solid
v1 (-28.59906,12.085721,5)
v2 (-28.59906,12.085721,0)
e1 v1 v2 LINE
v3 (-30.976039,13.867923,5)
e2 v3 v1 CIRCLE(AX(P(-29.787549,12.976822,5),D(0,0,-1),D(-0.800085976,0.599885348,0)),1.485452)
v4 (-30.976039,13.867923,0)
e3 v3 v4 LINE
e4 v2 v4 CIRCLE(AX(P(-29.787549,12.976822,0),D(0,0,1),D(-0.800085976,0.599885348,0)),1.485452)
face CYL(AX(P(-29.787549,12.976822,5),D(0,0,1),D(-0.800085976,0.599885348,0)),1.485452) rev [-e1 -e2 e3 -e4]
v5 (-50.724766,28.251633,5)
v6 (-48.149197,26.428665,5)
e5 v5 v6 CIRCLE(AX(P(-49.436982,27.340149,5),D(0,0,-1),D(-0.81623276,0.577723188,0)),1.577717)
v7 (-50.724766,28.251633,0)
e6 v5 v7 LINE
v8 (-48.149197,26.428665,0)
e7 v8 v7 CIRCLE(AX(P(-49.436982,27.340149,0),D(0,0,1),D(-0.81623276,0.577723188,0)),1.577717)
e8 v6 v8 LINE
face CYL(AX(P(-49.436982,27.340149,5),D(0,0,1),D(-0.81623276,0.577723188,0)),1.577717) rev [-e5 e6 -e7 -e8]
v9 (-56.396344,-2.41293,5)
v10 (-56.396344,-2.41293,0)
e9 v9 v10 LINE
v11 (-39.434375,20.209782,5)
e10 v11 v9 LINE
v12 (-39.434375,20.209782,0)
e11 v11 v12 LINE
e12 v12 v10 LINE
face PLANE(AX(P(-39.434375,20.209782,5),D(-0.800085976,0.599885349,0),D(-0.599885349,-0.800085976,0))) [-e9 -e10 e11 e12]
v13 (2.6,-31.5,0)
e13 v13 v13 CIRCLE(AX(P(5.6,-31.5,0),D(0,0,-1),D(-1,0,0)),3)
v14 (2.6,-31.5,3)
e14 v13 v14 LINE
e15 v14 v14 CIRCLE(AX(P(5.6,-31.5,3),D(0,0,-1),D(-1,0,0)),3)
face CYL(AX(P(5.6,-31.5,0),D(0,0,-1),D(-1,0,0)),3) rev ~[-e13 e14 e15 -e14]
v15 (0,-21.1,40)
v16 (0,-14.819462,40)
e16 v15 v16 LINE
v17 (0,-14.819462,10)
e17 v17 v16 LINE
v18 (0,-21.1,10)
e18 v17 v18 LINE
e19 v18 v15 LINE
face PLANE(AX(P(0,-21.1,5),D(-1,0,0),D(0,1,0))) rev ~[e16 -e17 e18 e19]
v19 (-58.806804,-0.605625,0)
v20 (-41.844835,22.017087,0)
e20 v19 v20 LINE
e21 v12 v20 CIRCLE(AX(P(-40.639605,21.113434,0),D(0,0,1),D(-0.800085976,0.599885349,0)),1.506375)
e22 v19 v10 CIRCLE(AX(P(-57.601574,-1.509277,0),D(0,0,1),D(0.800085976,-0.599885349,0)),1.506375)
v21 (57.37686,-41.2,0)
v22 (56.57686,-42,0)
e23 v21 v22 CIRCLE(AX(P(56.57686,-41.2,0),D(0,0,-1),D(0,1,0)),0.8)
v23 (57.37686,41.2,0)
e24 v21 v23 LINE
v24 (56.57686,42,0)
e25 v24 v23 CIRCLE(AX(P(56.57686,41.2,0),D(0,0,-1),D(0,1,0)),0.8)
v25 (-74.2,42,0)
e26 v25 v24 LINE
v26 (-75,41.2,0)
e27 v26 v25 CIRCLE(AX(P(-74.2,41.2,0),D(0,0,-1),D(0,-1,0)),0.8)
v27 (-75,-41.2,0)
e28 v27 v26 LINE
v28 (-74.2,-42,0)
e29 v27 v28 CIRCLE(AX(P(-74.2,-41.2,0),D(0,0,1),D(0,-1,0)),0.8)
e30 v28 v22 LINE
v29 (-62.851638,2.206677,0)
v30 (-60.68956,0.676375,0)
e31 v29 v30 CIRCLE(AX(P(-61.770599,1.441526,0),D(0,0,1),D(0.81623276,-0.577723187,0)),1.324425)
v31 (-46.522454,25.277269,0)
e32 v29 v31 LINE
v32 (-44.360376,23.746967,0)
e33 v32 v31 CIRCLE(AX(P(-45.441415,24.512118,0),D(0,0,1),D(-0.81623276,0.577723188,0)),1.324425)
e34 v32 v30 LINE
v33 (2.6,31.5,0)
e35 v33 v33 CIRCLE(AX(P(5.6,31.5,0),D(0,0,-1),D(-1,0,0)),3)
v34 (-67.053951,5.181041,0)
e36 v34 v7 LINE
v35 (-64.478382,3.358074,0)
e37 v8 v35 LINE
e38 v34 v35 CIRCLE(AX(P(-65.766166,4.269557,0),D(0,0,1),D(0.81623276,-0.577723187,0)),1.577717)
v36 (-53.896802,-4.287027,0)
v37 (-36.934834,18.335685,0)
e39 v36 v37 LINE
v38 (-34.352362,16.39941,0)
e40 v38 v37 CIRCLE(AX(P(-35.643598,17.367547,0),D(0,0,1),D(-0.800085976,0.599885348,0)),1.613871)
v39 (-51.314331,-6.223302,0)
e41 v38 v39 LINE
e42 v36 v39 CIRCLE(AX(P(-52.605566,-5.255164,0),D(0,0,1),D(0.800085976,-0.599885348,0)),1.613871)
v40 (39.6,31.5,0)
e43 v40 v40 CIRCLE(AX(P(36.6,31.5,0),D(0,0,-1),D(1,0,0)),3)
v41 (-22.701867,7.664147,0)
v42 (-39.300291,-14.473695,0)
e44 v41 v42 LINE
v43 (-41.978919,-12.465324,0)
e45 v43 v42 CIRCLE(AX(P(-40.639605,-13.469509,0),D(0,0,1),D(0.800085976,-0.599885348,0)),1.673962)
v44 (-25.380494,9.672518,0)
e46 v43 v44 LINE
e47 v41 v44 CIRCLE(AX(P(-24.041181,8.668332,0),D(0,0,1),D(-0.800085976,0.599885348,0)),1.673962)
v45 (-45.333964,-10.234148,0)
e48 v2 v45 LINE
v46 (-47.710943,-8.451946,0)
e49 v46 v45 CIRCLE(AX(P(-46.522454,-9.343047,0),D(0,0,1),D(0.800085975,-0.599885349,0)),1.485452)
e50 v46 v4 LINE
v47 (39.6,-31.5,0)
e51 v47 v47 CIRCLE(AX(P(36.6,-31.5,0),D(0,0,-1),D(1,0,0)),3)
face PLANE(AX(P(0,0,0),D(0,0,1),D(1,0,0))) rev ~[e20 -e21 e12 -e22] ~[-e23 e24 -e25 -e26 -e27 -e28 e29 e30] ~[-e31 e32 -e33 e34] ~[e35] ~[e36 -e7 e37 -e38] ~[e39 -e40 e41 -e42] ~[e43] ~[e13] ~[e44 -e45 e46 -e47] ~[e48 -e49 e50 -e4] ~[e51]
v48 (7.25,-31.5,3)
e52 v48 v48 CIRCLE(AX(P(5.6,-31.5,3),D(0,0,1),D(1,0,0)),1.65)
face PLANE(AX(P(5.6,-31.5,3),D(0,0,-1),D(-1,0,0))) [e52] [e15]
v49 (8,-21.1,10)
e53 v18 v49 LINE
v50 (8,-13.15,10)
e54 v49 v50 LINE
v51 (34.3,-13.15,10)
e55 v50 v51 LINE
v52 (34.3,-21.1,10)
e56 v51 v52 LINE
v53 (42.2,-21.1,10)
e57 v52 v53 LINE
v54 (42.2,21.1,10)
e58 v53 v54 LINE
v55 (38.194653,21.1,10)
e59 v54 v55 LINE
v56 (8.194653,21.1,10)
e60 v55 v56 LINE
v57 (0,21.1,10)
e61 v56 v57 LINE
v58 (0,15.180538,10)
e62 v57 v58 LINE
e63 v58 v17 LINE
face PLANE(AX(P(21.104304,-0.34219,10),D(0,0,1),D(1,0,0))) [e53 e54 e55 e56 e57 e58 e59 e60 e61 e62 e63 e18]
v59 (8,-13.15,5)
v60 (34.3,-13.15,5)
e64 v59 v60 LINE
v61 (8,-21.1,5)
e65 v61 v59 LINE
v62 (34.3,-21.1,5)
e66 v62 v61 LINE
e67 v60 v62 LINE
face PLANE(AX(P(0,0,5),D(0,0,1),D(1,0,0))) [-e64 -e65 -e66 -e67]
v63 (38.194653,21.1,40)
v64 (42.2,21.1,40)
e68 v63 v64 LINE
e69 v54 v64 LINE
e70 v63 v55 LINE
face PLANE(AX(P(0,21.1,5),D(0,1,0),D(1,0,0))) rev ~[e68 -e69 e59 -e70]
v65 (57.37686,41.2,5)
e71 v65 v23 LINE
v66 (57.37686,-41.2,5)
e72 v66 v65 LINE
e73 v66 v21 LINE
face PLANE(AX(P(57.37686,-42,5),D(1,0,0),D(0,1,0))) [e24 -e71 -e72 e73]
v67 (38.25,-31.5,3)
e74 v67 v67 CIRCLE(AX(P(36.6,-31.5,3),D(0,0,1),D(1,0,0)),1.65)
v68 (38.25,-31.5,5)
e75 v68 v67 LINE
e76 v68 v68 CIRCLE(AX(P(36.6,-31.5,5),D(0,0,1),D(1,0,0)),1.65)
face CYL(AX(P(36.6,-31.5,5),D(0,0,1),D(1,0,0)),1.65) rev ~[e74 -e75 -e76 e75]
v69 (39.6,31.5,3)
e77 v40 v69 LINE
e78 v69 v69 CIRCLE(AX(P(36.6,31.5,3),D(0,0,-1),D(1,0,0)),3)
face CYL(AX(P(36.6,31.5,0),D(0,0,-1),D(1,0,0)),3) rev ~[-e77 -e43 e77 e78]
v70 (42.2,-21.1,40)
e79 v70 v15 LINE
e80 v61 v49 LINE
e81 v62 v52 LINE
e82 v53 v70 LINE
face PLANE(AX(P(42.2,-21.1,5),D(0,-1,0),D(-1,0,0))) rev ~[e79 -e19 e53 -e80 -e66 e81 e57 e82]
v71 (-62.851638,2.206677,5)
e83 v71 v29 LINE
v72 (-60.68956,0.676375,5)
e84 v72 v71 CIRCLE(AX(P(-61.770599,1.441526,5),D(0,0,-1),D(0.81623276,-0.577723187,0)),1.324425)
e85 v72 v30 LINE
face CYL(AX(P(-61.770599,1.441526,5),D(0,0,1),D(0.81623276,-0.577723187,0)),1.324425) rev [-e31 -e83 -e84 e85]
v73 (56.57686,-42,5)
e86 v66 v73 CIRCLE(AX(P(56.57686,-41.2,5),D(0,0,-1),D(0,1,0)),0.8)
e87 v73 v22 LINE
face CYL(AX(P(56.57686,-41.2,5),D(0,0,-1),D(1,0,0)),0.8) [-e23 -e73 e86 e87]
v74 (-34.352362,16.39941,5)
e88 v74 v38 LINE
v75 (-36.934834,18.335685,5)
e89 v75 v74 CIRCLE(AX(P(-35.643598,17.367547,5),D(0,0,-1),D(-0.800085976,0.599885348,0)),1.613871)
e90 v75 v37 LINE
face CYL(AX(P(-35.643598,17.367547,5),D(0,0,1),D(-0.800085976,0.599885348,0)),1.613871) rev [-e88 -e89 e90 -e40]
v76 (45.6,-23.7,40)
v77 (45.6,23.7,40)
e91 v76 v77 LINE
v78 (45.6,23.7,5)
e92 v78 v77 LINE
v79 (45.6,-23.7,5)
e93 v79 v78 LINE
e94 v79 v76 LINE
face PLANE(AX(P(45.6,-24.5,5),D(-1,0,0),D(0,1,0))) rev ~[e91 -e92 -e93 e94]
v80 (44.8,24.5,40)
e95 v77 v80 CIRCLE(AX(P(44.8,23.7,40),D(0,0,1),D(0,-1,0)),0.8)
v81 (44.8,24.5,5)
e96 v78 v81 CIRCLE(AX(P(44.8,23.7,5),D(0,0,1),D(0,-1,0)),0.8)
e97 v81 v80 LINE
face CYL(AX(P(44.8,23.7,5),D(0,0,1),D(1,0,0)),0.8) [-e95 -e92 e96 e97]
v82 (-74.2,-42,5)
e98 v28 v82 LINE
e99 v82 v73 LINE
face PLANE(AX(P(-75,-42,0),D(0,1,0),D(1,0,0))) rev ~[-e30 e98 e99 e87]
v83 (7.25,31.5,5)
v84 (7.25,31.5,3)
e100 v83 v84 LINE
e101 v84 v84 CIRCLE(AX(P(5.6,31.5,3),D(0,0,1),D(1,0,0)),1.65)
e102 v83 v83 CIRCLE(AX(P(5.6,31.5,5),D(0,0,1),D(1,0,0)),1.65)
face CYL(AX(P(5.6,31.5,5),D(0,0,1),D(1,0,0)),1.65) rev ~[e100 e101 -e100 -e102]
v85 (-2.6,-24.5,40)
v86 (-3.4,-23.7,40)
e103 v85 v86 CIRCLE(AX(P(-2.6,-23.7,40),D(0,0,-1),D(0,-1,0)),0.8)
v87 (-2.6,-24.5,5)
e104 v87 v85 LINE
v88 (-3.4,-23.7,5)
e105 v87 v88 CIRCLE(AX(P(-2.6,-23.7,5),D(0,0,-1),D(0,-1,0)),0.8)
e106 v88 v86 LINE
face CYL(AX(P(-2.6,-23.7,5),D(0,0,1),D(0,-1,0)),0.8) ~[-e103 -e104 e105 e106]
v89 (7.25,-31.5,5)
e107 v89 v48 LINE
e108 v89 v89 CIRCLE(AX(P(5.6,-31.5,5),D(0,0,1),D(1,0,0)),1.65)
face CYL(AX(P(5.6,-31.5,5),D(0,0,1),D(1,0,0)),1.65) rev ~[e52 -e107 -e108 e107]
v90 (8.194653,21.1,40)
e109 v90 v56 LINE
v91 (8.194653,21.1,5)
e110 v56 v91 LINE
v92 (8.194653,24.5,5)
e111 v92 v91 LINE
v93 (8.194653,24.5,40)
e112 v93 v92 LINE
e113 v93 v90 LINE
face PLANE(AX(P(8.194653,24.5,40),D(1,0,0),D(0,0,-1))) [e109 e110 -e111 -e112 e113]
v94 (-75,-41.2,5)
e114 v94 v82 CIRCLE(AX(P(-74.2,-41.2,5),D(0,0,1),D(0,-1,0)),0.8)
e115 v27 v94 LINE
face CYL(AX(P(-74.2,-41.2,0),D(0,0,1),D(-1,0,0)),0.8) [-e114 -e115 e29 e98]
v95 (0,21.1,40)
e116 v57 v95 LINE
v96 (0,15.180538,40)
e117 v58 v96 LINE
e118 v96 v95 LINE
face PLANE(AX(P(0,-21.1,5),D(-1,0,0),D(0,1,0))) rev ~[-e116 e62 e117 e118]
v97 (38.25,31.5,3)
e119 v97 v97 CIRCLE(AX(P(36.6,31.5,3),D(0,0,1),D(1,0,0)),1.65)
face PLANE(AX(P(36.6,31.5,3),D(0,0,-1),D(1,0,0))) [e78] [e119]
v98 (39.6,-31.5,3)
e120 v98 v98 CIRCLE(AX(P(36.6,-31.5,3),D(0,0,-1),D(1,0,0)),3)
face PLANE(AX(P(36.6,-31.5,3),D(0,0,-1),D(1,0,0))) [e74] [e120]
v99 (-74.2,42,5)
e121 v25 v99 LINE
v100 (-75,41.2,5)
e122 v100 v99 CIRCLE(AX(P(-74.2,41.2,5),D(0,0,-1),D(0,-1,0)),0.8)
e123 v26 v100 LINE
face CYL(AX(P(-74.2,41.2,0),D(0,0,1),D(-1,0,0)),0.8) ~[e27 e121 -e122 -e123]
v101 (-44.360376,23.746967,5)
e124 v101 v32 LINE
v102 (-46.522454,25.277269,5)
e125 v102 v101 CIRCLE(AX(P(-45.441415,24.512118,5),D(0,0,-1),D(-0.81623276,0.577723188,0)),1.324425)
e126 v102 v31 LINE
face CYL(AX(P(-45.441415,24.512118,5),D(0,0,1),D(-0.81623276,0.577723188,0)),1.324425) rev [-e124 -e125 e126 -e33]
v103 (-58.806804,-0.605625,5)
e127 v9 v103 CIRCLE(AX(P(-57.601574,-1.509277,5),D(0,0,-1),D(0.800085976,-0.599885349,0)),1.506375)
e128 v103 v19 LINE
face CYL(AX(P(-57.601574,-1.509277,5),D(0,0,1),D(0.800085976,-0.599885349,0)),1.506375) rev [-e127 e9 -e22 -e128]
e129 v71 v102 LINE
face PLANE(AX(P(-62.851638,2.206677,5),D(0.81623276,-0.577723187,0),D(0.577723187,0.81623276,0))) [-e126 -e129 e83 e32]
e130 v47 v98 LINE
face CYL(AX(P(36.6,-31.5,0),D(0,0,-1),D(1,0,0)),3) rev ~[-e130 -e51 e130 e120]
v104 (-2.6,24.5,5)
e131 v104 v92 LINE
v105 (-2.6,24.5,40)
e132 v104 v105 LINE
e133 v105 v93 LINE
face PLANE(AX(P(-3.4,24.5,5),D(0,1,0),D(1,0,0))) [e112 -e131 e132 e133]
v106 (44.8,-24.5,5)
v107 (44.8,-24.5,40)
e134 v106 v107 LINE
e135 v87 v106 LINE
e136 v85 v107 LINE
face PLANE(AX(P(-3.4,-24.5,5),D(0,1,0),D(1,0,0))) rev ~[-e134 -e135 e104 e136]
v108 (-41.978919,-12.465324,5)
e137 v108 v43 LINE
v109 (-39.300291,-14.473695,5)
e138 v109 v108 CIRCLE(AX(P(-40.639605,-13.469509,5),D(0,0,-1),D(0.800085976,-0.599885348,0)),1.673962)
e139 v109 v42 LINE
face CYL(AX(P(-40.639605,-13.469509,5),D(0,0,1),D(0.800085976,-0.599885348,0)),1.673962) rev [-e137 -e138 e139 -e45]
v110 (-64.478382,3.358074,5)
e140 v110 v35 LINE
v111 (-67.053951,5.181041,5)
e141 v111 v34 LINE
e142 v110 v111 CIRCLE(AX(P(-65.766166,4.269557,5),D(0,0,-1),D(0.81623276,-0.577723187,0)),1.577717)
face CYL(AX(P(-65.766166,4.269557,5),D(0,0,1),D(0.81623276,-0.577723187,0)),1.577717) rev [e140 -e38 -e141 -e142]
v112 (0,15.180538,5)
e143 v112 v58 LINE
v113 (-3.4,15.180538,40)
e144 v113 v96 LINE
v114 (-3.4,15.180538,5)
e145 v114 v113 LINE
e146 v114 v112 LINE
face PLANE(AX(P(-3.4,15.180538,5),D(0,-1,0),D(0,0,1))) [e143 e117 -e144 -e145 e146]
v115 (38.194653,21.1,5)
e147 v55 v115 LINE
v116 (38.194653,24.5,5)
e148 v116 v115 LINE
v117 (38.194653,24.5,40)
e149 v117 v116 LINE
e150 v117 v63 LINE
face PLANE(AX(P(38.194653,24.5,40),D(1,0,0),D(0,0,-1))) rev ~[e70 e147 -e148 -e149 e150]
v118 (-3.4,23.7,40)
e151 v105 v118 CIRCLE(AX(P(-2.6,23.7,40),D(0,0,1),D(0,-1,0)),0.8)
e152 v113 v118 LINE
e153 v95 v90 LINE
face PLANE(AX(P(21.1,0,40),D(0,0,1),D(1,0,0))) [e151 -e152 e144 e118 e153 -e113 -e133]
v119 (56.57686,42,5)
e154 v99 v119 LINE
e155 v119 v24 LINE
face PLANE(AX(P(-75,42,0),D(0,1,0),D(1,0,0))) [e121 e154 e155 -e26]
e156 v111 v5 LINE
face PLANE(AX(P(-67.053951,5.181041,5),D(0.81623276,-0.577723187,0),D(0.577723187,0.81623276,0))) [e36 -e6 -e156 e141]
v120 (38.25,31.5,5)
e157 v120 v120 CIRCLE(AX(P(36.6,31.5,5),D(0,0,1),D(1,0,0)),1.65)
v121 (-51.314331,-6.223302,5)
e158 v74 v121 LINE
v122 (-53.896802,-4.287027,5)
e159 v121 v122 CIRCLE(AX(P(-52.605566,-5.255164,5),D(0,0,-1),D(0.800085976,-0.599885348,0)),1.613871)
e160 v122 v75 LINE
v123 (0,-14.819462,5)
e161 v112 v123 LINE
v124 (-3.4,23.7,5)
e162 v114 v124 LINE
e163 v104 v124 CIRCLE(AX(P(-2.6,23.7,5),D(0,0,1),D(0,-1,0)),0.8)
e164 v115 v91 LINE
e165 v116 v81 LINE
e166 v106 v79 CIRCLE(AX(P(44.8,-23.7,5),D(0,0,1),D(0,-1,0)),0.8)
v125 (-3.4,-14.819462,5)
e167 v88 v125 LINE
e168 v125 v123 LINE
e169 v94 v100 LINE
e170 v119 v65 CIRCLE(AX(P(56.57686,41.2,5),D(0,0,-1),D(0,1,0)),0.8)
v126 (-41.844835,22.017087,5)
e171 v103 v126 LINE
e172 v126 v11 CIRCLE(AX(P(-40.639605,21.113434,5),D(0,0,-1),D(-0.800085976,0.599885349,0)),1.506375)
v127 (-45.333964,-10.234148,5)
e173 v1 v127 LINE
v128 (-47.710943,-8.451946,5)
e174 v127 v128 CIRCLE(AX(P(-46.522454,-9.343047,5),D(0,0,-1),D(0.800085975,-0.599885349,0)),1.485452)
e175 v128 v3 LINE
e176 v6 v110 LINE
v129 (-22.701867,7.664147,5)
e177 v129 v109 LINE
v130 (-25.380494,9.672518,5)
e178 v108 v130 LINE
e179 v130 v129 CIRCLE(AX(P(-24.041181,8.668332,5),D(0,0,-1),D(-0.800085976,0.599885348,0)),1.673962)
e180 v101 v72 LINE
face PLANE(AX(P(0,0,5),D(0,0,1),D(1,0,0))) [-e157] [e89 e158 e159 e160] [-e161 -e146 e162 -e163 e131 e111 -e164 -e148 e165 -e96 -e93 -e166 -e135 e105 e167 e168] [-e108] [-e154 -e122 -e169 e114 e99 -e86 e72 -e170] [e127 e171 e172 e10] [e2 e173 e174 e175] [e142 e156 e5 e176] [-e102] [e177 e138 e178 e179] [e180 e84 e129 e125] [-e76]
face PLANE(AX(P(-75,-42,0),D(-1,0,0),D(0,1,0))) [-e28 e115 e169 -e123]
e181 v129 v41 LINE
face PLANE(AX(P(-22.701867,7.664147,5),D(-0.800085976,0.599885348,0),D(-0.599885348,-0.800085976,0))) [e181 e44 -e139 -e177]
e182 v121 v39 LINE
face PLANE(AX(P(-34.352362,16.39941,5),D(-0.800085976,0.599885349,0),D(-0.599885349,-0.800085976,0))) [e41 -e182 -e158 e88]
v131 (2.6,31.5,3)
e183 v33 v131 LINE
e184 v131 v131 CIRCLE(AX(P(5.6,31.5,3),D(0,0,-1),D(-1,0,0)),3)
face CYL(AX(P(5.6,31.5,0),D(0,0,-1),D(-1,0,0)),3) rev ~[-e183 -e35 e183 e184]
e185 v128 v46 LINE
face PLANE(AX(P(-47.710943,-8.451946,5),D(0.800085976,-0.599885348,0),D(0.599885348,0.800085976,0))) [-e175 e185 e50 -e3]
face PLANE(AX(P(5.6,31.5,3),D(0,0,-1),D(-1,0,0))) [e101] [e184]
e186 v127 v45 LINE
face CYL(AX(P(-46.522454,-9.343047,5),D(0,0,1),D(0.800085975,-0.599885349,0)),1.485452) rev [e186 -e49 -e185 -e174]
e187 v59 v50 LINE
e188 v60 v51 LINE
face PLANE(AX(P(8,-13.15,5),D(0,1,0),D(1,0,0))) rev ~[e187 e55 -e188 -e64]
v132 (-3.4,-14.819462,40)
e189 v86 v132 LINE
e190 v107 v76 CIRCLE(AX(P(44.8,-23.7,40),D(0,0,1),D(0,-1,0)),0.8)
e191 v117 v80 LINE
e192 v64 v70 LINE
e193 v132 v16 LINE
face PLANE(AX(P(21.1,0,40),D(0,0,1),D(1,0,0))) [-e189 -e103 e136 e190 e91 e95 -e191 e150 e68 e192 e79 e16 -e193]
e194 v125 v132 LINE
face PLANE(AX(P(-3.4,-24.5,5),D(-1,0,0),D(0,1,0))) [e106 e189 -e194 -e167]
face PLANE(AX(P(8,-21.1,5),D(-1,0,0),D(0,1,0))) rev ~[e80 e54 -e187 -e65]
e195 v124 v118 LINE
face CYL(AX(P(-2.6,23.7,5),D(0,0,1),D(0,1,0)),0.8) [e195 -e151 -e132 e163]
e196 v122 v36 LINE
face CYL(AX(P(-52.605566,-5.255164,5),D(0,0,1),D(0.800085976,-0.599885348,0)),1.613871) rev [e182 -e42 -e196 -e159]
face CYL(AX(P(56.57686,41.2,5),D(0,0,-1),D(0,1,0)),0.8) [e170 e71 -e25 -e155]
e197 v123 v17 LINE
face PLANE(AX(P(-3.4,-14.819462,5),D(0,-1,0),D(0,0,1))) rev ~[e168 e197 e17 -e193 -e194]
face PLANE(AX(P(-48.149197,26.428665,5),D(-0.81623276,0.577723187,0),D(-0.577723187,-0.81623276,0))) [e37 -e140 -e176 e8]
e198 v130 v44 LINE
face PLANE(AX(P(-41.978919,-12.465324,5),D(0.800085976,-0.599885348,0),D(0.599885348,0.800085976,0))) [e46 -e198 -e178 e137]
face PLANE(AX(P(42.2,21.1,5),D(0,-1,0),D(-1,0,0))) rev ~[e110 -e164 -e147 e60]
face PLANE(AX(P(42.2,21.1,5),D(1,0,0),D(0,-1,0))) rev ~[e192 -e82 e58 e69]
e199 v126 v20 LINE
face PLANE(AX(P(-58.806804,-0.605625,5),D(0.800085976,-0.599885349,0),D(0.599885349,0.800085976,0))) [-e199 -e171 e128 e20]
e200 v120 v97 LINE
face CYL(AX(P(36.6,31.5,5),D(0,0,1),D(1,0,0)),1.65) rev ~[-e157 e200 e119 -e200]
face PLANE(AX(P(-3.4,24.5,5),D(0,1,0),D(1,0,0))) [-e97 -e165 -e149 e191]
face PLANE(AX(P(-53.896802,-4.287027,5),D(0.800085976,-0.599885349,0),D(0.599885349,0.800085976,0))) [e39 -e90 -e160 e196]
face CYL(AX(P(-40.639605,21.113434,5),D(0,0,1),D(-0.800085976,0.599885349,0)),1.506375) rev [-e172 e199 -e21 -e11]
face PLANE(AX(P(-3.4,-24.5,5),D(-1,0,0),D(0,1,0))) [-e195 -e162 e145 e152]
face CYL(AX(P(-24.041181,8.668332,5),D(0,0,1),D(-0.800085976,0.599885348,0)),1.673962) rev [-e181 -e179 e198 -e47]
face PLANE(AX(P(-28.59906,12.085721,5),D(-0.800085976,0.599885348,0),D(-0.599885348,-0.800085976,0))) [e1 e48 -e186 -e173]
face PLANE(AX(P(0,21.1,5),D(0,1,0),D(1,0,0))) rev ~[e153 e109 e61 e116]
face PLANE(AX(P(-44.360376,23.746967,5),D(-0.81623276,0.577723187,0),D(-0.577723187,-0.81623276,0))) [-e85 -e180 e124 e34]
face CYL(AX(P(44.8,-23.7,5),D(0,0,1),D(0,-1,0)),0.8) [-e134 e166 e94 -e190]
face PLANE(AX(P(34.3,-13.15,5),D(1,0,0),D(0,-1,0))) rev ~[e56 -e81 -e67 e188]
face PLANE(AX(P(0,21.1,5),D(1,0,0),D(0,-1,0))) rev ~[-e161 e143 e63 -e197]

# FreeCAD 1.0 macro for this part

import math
import FreeCAD as App
import Part
import Sketcher
from FreeCAD import Vector


def edges_at(feature, points):
    """Names of the edges that pass closest to the given points."""
    edges = feature.Shape.Edges
    near = lambda p: min(range(len(edges)), key=lambda i: edges[i].distToShape(Part.Vertex(*p))[0])
    return sorted({f"Edge{near(p) + 1}" for p in points})


def add_polygon(sketch, points):
    """Adds a closed chain of lines whose ends are joined by coincident constraints."""
    first, n = sketch.GeometryCount, len(points)
    for a, b in zip(points, points[1:] + points[:1]):
        sketch.addGeometry(Part.LineSegment(App.Vector(*a, 0), App.Vector(*b, 0)), False)
    for i in range(n):
        sketch.addConstraint(Sketcher.Constraint("Coincident", first + i, 2, first + (i + 1) % n, 1))

doc = App.newDocument("Part")
params = doc.addObject("Spreadsheet::Sheet", "Params")
for row, (alias, value) in enumerate([
    ("sketch1_width", "150 mm"),
    ("sketch1_height", "84 mm"),
    ("pad1_length", "5 mm"),
    ("sketch2_width", "49 mm"),
    ("sketch2_width2", "42.2 mm"),
    ("pad2_length", "35 mm"),
    ("sketch3_width", "30 mm"),
    ("sketch3_height", "35 mm"),
    ("pocket1_length", "21 mm"),
    ("sketch4_width", "30 mm"),
    ("sketch4_height", "35 mm"),
    ("pocket2_length", "21 mm"),
    ("fillet_radius", "0.8 mm"),
    ("pocket3_length", "21 mm"),
    ("sketch6_height", "84 mm"),
    ("pocket4_length", "21 mm"),
    ("fillet2_radius", "0.8 mm"),
    ("sketch7_width", "8 mm"),
    ("sketch7_width2", "26.3 mm"),
    ("sketch7_width3", "7.9 mm"),
    ("sketch7_height", "7.95 mm"),
    ("pad3_length", "5 mm"),
    ("sketch8_diameter", "3.3 mm"),
    ("pocket5_length", "10 mm"),
    ("sketch9_diameter", "6 mm"),
    ("pocket6_length", "3 mm"),
], start=1):
    params.set(f"A{row}", alias)
    params.set(f"B{row}", "=" + value)
    params.setAlias(f"B{row}", alias)

body = doc.addObject("PartDesign::Body", "Body")

# Sketch on XY plane
sketch1 = doc.addObject("Sketcher::SketchObject", "Sketch")
body.addObject(sketch1)
sketch1.AttachmentSupport = (doc.XY_Plane, [""])
sketch1.MapMode = "FlatFace"
add_polygon(sketch1, [(-75, 42), (-75, -42), (75, -42), (75, 42)])  # lines 0-3
sketch1.addConstraint(Sketcher.Constraint("Vertical", 0))
sketch1.addConstraint(Sketcher.Constraint("Horizontal", 1))
sketch1.addConstraint(Sketcher.Constraint("Vertical", 2))
sketch1.addConstraint(Sketcher.Constraint("Horizontal", 3))
sketch1.addConstraint(Sketcher.Constraint("Symmetric", 0, 2, 2, 2, -1, 1))
sketch1.addConstraint(Sketcher.Constraint("DistanceX", 1, 1, 1, 2, 150.0))
sketch1.addConstraint(Sketcher.Constraint("DistanceY", 0, 2, 0, 1, 84.0))
sketch1.setExpression("Constraints[9]", "Params.sketch1_width")
sketch1.setExpression("Constraints[10]", "Params.sketch1_height")
pad1 = doc.addObject("PartDesign::Pad", "Pad")
body.addObject(pad1)
pad1.Profile = sketch1
pad1.setExpression("Length", "Params.pad1_length")

# Sketch on XY plane
sketch2 = doc.addObject("Sketcher::SketchObject", "Sketch001")
body.addObject(sketch2)
sketch2.AttachmentSupport = (doc.XY_Plane, [""])
sketch2.MapMode = "FlatFace"
sketch2.AttachmentOffset = App.Placement(Vector(0, 0, 5), App.Rotation())
add_polygon(sketch2, [(-3.4, 24.5), (-3.4, -24.5), (45.6, -24.5), (45.6, 24.5)])  # lines 0-3
add_polygon(sketch2, [(0, -21.1), (0, 21.1), (42.2, 21.1), (42.2, -21.1)])  # lines 4-7
sketch2.addConstraint(Sketcher.Constraint("Vertical", 0))
sketch2.addConstraint(Sketcher.Constraint("Horizontal", 1))
sketch2.addConstraint(Sketcher.Constraint("Vertical", 2))
sketch2.addConstraint(Sketcher.Constraint("Horizontal", 3))
sketch2.addConstraint(Sketcher.Constraint("Vertical", 4))
sketch2.addConstraint(Sketcher.Constraint("Horizontal", 5))
sketch2.addConstraint(Sketcher.Constraint("Vertical", 6))
sketch2.addConstraint(Sketcher.Constraint("Horizontal", 7))
sketch2.addConstraint(Sketcher.Constraint("Symmetric", 4, 2, 7, 2, -1, 1))
sketch2.addConstraint(Sketcher.Constraint("Equal", 3, 0))
sketch2.addConstraint(Sketcher.Constraint("Equal", 7, 4))
sketch2.addConstraint(Sketcher.Constraint("DistanceX", 1, 1, 1, 2, 49.0))
sketch2.addConstraint(Sketcher.Constraint("DistanceX", 5, 1, 5, 2, 42.2))
sketch2.addConstraint(Sketcher.Constraint("DistanceX", 0, 2, -1, 1, 3.4))
sketch2.addConstraint(Sketcher.Constraint("DistanceY", 0, 2, -1, 1, 24.5))
sketch2.setExpression("Constraints[19]", "Params.sketch2_width")
sketch2.setExpression("Constraints[20]", "Params.sketch2_width2")
pad2 = doc.addObject("PartDesign::Pad", "Pad001")
body.addObject(pad2)
pad2.Profile = sketch2
pad2.setExpression("Length", "Params.pad2_length")

# Sketch on YZ plane
sketch3 = doc.addObject("Sketcher::SketchObject", "Sketch002")
body.addObject(sketch3)
sketch3.AttachmentSupport = (doc.YZ_Plane, [""])
sketch3.MapMode = "FlatFace"
sketch3.AttachmentOffset = App.Placement(Vector(0, 0, -3.4), App.Rotation())
add_polygon(sketch3, [(15.180538, 5), (-14.819462, 5), (-14.819462, 40), (15.180538, 40)])  # lines 0-3
sketch3.addConstraint(Sketcher.Constraint("Horizontal", 0))
sketch3.addConstraint(Sketcher.Constraint("Vertical", 1))
sketch3.addConstraint(Sketcher.Constraint("Horizontal", 2))
sketch3.addConstraint(Sketcher.Constraint("Vertical", 3))
sketch3.addConstraint(Sketcher.Constraint("DistanceX", 0, 2, 0, 1, 30.0))
sketch3.addConstraint(Sketcher.Constraint("DistanceY", 1, 1, 1, 2, 35.0))
sketch3.addConstraint(Sketcher.Constraint("DistanceY", -1, 1, 0, 2, 5.0))
sketch3.addConstraint(Sketcher.Constraint("DistanceX", 0, 2, -1, 1, 14.819462))
sketch3.setExpression("Constraints[8]", "Params.sketch3_width")
sketch3.setExpression("Constraints[9]", "Params.sketch3_height")
pocket1 = doc.addObject("PartDesign::Pocket", "Pocket")
body.addObject(pocket1)
pocket1.Profile = sketch3
pocket1.setExpression("Length", "Params.pocket1_length")
pocket1.Reversed = True

# Sketch on XZ plane
sketch4 = doc.addObject("Sketcher::SketchObject", "Sketch003")
body.addObject(sketch4)
sketch4.AttachmentSupport = (doc.XZ_Plane, [""])
sketch4.MapMode = "FlatFace"
sketch4.AttachmentOffset = App.Placement(Vector(0, 0, -24.5), App.Rotation())
add_polygon(sketch4, [(8.194653, 5), (8.194653, 40), (38.194653, 40), (38.194653, 5)])  # lines 0-3
sketch4.addConstraint(Sketcher.Constraint("Vertical", 0))
sketch4.addConstraint(Sketcher.Constraint("Horizontal", 1))
sketch4.addConstraint(Sketcher.Constraint("Vertical", 2))
sketch4.addConstraint(Sketcher.Constraint("Horizontal", 3))
sketch4.addConstraint(Sketcher.Constraint("DistanceX", 1, 1, 1, 2, 30.0))
sketch4.addConstraint(Sketcher.Constraint("DistanceY", 0, 1, 0, 2, 35.0))
sketch4.addConstraint(Sketcher.Constraint("DistanceY", -1, 1, 0, 2, 40.0))
sketch4.addConstraint(Sketcher.Constraint("DistanceX", -1, 1, 0, 2, 8.194653))
sketch4.setExpression("Constraints[8]", "Params.sketch4_width")
sketch4.setExpression("Constraints[9]", "Params.sketch4_height")
pocket2 = doc.addObject("PartDesign::Pocket", "Pocket001")
body.addObject(pocket2)
pocket2.Profile = sketch4
pocket2.setExpression("Length", "Params.pocket2_length")
pocket2.Reversed = True
doc.recompute()

fillet = doc.addObject("PartDesign::Fillet", "Fillet")
body.addObject(fillet)
fillet.Base = (pocket2, edges_at(pocket2, [
    (45.6, -24.5, 22.5),
    (45.6, 24.5, 22.5),
    (-3.4, 24.5, 22.5),
    (-3.4, -24.5, 22.5),
    (75, -42, 2.5),
    (-75, -42, 2.5),
    (-75, 42, 2.5),
    (75, 42, 2.5),
]))
fillet.setExpression("Radius", "Params.fillet_radius")

# Sketch on XY plane
sketch5 = doc.addObject("Sketcher::SketchObject", "Sketch004")
body.addObject(sketch5)
sketch5.AttachmentSupport = (doc.XY_Plane, [""])
sketch5.MapMode = "FlatFace"
sketch5.AttachmentOffset = App.Placement(Vector(0, 0, 5), App.Rotation())
sketch5.addGeometry(Part.LineSegment(Vector(-64.478382, 3.358074, 0), Vector(-48.149197, 26.428665, 0)), False)
sketch5.addGeometry(Part.ArcOfCircle(Part.Circle(Vector(-49.436982, 27.340149, 0), Vector(0, 0, 1), 1.577717), math.radians(-35.290563), math.radians(144.709437)), False)
sketch5.addGeometry(Part.LineSegment(Vector(-50.724766, 28.251633, 0), Vector(-67.053951, 5.181041, 0)), False)
sketch5.addGeometry(Part.ArcOfCircle(Part.Circle(Vector(-65.766166, 4.269557, 0), Vector(0, 0, 1), 1.577717), math.radians(144.709437), math.radians(324.709437)), False)
sketch5.addGeometry(Part.LineSegment(Vector(-60.68956, 0.676375, 0), Vector(-44.360376, 23.746967, 0)), False)
sketch5.addGeometry(Part.ArcOfCircle(Part.Circle(Vector(-45.441415, 24.512118, 0), Vector(0, 0, 1), 1.324425), math.radians(-35.290563), math.radians(144.709437)), False)
sketch5.addGeometry(Part.LineSegment(Vector(-46.522454, 25.277269, 0), Vector(-62.851638, 2.206677, 0)), False)
sketch5.addGeometry(Part.ArcOfCircle(Part.Circle(Vector(-61.770599, 1.441526, 0), Vector(0, 0, 1), 1.324425), math.radians(144.709437), math.radians(324.709437)), False)
sketch5.addGeometry(Part.LineSegment(Vector(-56.396344, -2.41293, 0), Vector(-39.434375, 20.209782, 0)), False)
sketch5.addGeometry(Part.ArcOfCircle(Part.Circle(Vector(-40.639605, 21.113434, 0), Vector(0, 0, 1), 1.506375), math.radians(-36.861687), math.radians(143.138313)), False)
sketch5.addGeometry(Part.LineSegment(Vector(-41.844835, 22.017087, 0), Vector(-58.806804, -0.605625, 0)), False)
sketch5.addGeometry(Part.ArcOfCircle(Part.Circle(Vector(-57.601574, -1.509277, 0), Vector(0, 0, 1), 1.506375), math.radians(143.138313), math.radians(323.138313)), False)
sketch5.addGeometry(Part.LineSegment(Vector(-51.314331, -6.223302, 0), Vector(-34.352362, 16.39941, 0)), False)
sketch5.addGeometry(Part.ArcOfCircle(Part.Circle(Vector(-35.643598, 17.367547, 0), Vector(0, 0, 1), 1.613871), math.radians(-36.861687), math.radians(143.138313)), False)
sketch5.addGeometry(Part.LineSegment(Vector(-36.934834, 18.335685, 0), Vector(-53.896802, -4.287027, 0)), False)
sketch5.addGeometry(Part.ArcOfCircle(Part.Circle(Vector(-52.605566, -5.255164, 0), Vector(0, 0, 1), 1.613871), math.radians(143.138313), math.radians(323.138313)), False)
sketch5.addGeometry(Part.LineSegment(Vector(-45.333964, -10.234148, 0), Vector(-28.59906, 12.085721, 0)), False)
sketch5.addGeometry(Part.ArcOfCircle(Part.Circle(Vector(-29.787549, 12.976822, 0), Vector(0, 0, 1), 1.485452), math.radians(-36.861687), math.radians(143.138313)), False)
sketch5.addGeometry(Part.LineSegment(Vector(-30.976039, 13.867923, 0), Vector(-47.710943, -8.451946, 0)), False)
sketch5.addGeometry(Part.ArcOfCircle(Part.Circle(Vector(-46.522454, -9.343047, 0), Vector(0, 0, 1), 1.485452), math.radians(143.138313), math.radians(323.138313)), False)
sketch5.addGeometry(Part.LineSegment(Vector(-39.300291, -14.473695, 0), Vector(-22.701867, 7.664147, 0)), False)
sketch5.addGeometry(Part.ArcOfCircle(Part.Circle(Vector(-24.041181, 8.668332, 0), Vector(0, 0, 1), 1.673962), math.radians(-36.861687), math.radians(143.138313)), False)
sketch5.addGeometry(Part.LineSegment(Vector(-25.380494, 9.672518, 0), Vector(-41.978919, -12.465324, 0)), False)
sketch5.addGeometry(Part.ArcOfCircle(Part.Circle(Vector(-40.639605, -13.469509, 0), Vector(0, 0, 1), 1.673962), math.radians(143.138313), math.radians(323.138313)), False)
sketch5.addConstraint(Sketcher.Constraint("Tangent", 0, 2, 1, 1))
sketch5.addConstraint(Sketcher.Constraint("Tangent", 1, 2, 2, 1))
sketch5.addConstraint(Sketcher.Constraint("Tangent", 2, 2, 3, 1))
sketch5.addConstraint(Sketcher.Constraint("Tangent", 3, 2, 0, 1))
sketch5.addConstraint(Sketcher.Constraint("Tangent", 4, 2, 5, 1))
sketch5.addConstraint(Sketcher.Constraint("Tangent", 5, 2, 6, 1))
sketch5.addConstraint(Sketcher.Constraint("Tangent", 6, 2, 7, 1))
sketch5.addConstraint(Sketcher.Constraint("Tangent", 7, 2, 4, 1))
sketch5.addConstraint(Sketcher.Constraint("Tangent", 8, 2, 9, 1))
sketch5.addConstraint(Sketcher.Constraint("Tangent", 9, 2, 10, 1))
sketch5.addConstraint(Sketcher.Constraint("Tangent", 10, 2, 11, 1))
sketch5.addConstraint(Sketcher.Constraint("Tangent", 11, 2, 8, 1))
sketch5.addConstraint(Sketcher.Constraint("Tangent", 12, 2, 13, 1))
sketch5.addConstraint(Sketcher.Constraint("Tangent", 13, 2, 14, 1))
sketch5.addConstraint(Sketcher.Constraint("Tangent", 14, 2, 15, 1))
sketch5.addConstraint(Sketcher.Constraint("Tangent", 15, 2, 12, 1))
sketch5.addConstraint(Sketcher.Constraint("Tangent", 16, 2, 17, 1))
sketch5.addConstraint(Sketcher.Constraint("Tangent", 17, 2, 18, 1))
sketch5.addConstraint(Sketcher.Constraint("Tangent", 18, 2, 19, 1))
sketch5.addConstraint(Sketcher.Constraint("Tangent", 19, 2, 16, 1))
sketch5.addConstraint(Sketcher.Constraint("Tangent", 20, 2, 21, 1))
sketch5.addConstraint(Sketcher.Constraint("Tangent", 21, 2, 22, 1))
sketch5.addConstraint(Sketcher.Constraint("Tangent", 22, 2, 23, 1))
sketch5.addConstraint(Sketcher.Constraint("Tangent", 23, 2, 20, 1))
sketch5.addConstraint(Sketcher.Constraint("Equal", 1, 3))
sketch5.addConstraint(Sketcher.Constraint("Equal", 5, 7))
sketch5.addConstraint(Sketcher.Constraint("Equal", 9, 11))
sketch5.addConstraint(Sketcher.Constraint("Equal", 13, 15))
sketch5.addConstraint(Sketcher.Constraint("Equal", 17, 19))
sketch5.addConstraint(Sketcher.Constraint("Equal", 21, 23))
sketch5.addConstraint(Sketcher.Constraint("Parallel", 2, 4))
sketch5.addConstraint(Sketcher.Constraint("Parallel", 10, 12))
sketch5.addConstraint(Sketcher.Constraint("Parallel", 14, 16))
sketch5.addConstraint(Sketcher.Constraint("Parallel", 18, 20))
sketch5.addConstraint(Sketcher.Constraint("Vertical", 9, 3, 23, 3))
sketch5.addConstraint(Sketcher.Constraint("Vertical", 19, 3, 5, 2))
sketch5.addConstraint(Sketcher.Constraint("Equal", 2, 4))
sketch5.addConstraint(Sketcher.Constraint("Equal", 10, 12))
sketch5.addConstraint(Sketcher.Constraint("Radius", 13, 1.613871))
sketch5.addConstraint(Sketcher.Constraint("DistanceX", 9, 2, 13, 2, 4.910001))
sketch5.addConstraint(Sketcher.Constraint("Radius", 1, 1.577717))
sketch5.addConstraint(Sketcher.Constraint("Radius", 5, 1.324425))
sketch5.addConstraint(Sketcher.Constraint("Radius", 9, 1.506375))
sketch5.addConstraint(Sketcher.Constraint("Radius", 17, 1.485452))
sketch5.addConstraint(Sketcher.Constraint("Radius", 21, 1.673962))
sketch5.addConstraint(Sketcher.Constraint("DistanceX", 7, 3, 13, 3, 26.127002))
sketch5.addConstraint(Sketcher.Constraint("DistanceX", 4, 2, 8, 2, 4.926))
sketch5.addConstraint(Sketcher.Constraint("DistanceY", 10, 2, 7, 2, 1.282))
sketch5.addConstraint(Sketcher.Constraint("DistanceX", 7, 3, -1, 1, 61.770599))
sketch5.addConstraint(Sketcher.Constraint("DistanceY", 13, 3, 1, 3, 9.972601))
sketch5.addConstraint(Sketcher.Constraint("DistanceX", 3, 3, 15, 3, 13.1606))
sketch5.addConstraint(Sketcher.Constraint("DistanceY", 15, 3, 9, 3, 26.368599))
sketch5.addConstraint(Sketcher.Constraint("DistanceX", 0, 2, 13, 3, 12.505599))
sketch5.addConstraint(Sketcher.Constraint("DistanceY", 9, 3, 1, 2, 7.138198))
sketch5.addConstraint(Sketcher.Constraint("DistanceY", 4, 2, 0, 2, 2.681698))
sketch5.addConstraint(Sketcher.Constraint("Distance", 16, 27.896838))
sketch5.addConstraint(Sketcher.Constraint("Distance", 20, 27.669328))
sketch5.addConstraint(Sketcher.Constraint("DistanceY", -1, 1, 1, 3, 27.340149))
sketch5.addConstraint(Sketcher.Constraint("DistanceY", 23, 3, -1, 1, 13.469509))
sketch5.addConstraint(Sketcher.Constraint("DistanceY", -1, 1, 16, 2, 12.085721))
pocket3 = doc.addObject("PartDesign::Pocket", "Pocket002")
body.addObject(pocket3)
pocket3.Profile = sketch5
pocket3.setExpression("Length", "Params.pocket3_length")

# Sketch on XY plane
sketch6 = doc.addObject("Sketcher::SketchObject", "Sketch005")
body.addObject(sketch6)
sketch6.AttachmentSupport = (doc.XY_Plane, [""])
sketch6.MapMode = "FlatFace"
sketch6.AttachmentOffset = App.Placement(Vector(0, 0, 5), App.Rotation())
add_polygon(sketch6, [(57.37686, 42), (57.37686, -42), (84.791914, -42), (84.791914, 42)])  # lines 0-3
sketch6.addConstraint(Sketcher.Constraint("Vertical", 0))
sketch6.addConstraint(Sketcher.Constraint("Horizontal", 1))
sketch6.addConstraint(Sketcher.Constraint("Vertical", 2))
sketch6.addConstraint(Sketcher.Constraint("Horizontal", 3))
sketch6.addConstraint(Sketcher.Constraint("DistanceY", 0, 2, 0, 1, 84.0))
sketch6.addConstraint(Sketcher.Constraint("DistanceY", 0, 2, -1, 1, 42.0))
sketch6.addConstraint(Sketcher.Constraint("DistanceX", 1, 1, 1, 2, 27.415053))
sketch6.addConstraint(Sketcher.Constraint("DistanceX", -1, 1, 0, 2, 57.37686))
sketch6.setExpression("Constraints[8]", "Params.sketch6_height")
pocket4 = doc.addObject("PartDesign::Pocket", "Pocket003")
body.addObject(pocket4)
pocket4.Profile = sketch6
pocket4.setExpression("Length", "Params.pocket4_length")
doc.recompute()

fillet2 = doc.addObject("PartDesign::Fillet", "Fillet001")
body.addObject(fillet2)
fillet2.Base = (pocket4, edges_at(pocket4, [(57.377, -42, 2.5), (57.377, 42, 2.5)]))
fillet2.setExpression("Radius", "Params.fillet2_radius")

# Sketch on XY plane
sketch7 = doc.addObject("Sketcher::SketchObject", "Sketch006")
body.addObject(sketch7)
sketch7.AttachmentSupport = (doc.XY_Plane, [""])
sketch7.MapMode = "FlatFace"
sketch7.AttachmentOffset = App.Placement(Vector(0, 0, 5), App.Rotation())
add_polygon(sketch7, [(0, 21.1), (0, -21.1), (8, -21.1), (8, -13.15), (34.3, -13.15), (34.3, -21.1), (42.2, -21.1), (42.2, 21.1)])  # lines 0-7
sketch7.addConstraint(Sketcher.Constraint("Vertical", 0))
sketch7.addConstraint(Sketcher.Constraint("Horizontal", 1))
sketch7.addConstraint(Sketcher.Constraint("Vertical", 2))
sketch7.addConstraint(Sketcher.Constraint("Horizontal", 3))
sketch7.addConstraint(Sketcher.Constraint("Vertical", 4))
sketch7.addConstraint(Sketcher.Constraint("Horizontal", 5))
sketch7.addConstraint(Sketcher.Constraint("Vertical", 6))
sketch7.addConstraint(Sketcher.Constraint("Horizontal", 7))
sketch7.addConstraint(Sketcher.Constraint("Symmetric", 0, 2, 7, 2, -1, 1))
sketch7.addConstraint(Sketcher.Constraint("Horizontal", 1, 2, 4, 2))
sketch7.addConstraint(Sketcher.Constraint("Equal", 7, 0))
sketch7.addConstraint(Sketcher.Constraint("DistanceX", 1, 1, 1, 2, 8.0))
sketch7.addConstraint(Sketcher.Constraint("DistanceX", 3, 1, 3, 2, 26.3))
sketch7.addConstraint(Sketcher.Constraint("DistanceX", 5, 1, 5, 2, 7.9))
sketch7.addConstraint(Sketcher.Constraint("DistanceY", 2, 1, 2, 2, 7.95))
sketch7.setExpression("Constraints[19]", "Params.sketch7_width")
sketch7.setExpression("Constraints[20]", "Params.sketch7_width2")
sketch7.setExpression("Constraints[21]", "Params.sketch7_width3")
sketch7.setExpression("Constraints[22]", "Params.sketch7_height")
pad3 = doc.addObject("PartDesign::Pad", "Pad002")
body.addObject(pad3)
pad3.Profile = sketch7
pad3.setExpression("Length", "Params.pad3_length")

# Sketch on XY plane
sketch8 = doc.addObject("Sketcher::SketchObject", "Sketch007")
body.addObject(sketch8)
sketch8.AttachmentSupport = (doc.XY_Plane, [""])
sketch8.MapMode = "FlatFace"
sketch8.AttachmentOffset = App.Placement(Vector(0, 0, 5), App.Rotation())
sketch8.addGeometry(Part.Circle(Vector(5.6, -31.5, 0), Vector(0, 0, 1), 1.65), False)
sketch8.addGeometry(Part.Circle(Vector(5.6, 31.5, 0), Vector(0, 0, 1), 1.65), False)
sketch8.addGeometry(Part.Circle(Vector(36.6, -31.5, 0), Vector(0, 0, 1), 1.65), False)
sketch8.addGeometry(Part.Circle(Vector(36.6, 31.5, 0), Vector(0, 0, 1), 1.65), False)
sketch8.addConstraint(Sketcher.Constraint("Equal", 0, 1))
sketch8.addConstraint(Sketcher.Constraint("Equal", 1, 2))
sketch8.addConstraint(Sketcher.Constraint("Equal", 2, 3))
sketch8.addConstraint(Sketcher.Constraint("Symmetric", 0, 3, 1, 3, -1))
sketch8.addConstraint(Sketcher.Constraint("Symmetric", 2, 3, 3, 3, -1))
sketch8.addConstraint(Sketcher.Constraint("Horizontal", 0, 3, 2, 3))
sketch8.addConstraint(Sketcher.Constraint("Diameter", 0, 3.3))
sketch8.addConstraint(Sketcher.Constraint("DistanceY", 0, 3, 1, 3, 63.0))
sketch8.addConstraint(Sketcher.Constraint("DistanceX", 0, 3, 2, 3, 31.0))
sketch8.addConstraint(Sketcher.Constraint("DistanceX", -1, 1, 0, 3, 5.6))
sketch8.setExpression("Constraints[6]", "Params.sketch8_diameter")
pocket5 = doc.addObject("PartDesign::Pocket", "Pocket004")
body.addObject(pocket5)
pocket5.Profile = sketch8
pocket5.setExpression("Length", "Params.pocket5_length")

# Sketch on XY plane
sketch9 = doc.addObject("Sketcher::SketchObject", "Sketch008")
body.addObject(sketch9)
sketch9.AttachmentSupport = (doc.XY_Plane, [""])
sketch9.MapMode = "FlatFace"
sketch9.addGeometry(Part.Circle(Vector(5.6, 31.5, 0), Vector(0, 0, 1), 3), False)
sketch9.addGeometry(Part.Circle(Vector(5.6, -31.5, 0), Vector(0, 0, 1), 3), False)
sketch9.addGeometry(Part.Circle(Vector(36.6, -31.5, 0), Vector(0, 0, 1), 3), False)
sketch9.addGeometry(Part.Circle(Vector(36.6, 31.5, 0), Vector(0, 0, 1), 3), False)
sketch9.addConstraint(Sketcher.Constraint("Equal", 0, 1))
sketch9.addConstraint(Sketcher.Constraint("Equal", 1, 2))
sketch9.addConstraint(Sketcher.Constraint("Equal", 2, 3))
sketch9.addConstraint(Sketcher.Constraint("Symmetric", 0, 3, 1, 3, -1))
sketch9.addConstraint(Sketcher.Constraint("Symmetric", 2, 3, 3, 3, -1))
sketch9.addConstraint(Sketcher.Constraint("Horizontal", 1, 3, 2, 3))
sketch9.addConstraint(Sketcher.Constraint("Diameter", 0, 6.0))
sketch9.addConstraint(Sketcher.Constraint("DistanceY", 1, 3, 0, 3, 63.0))
sketch9.addConstraint(Sketcher.Constraint("DistanceX", 1, 3, 2, 3, 31.0))
sketch9.addConstraint(Sketcher.Constraint("DistanceX", -1, 1, 0, 3, 5.6))
sketch9.setExpression("Constraints[6]", "Params.sketch9_diameter")
pocket6 = doc.addObject("PartDesign::Pocket", "Pocket005")
body.addObject(pocket6)
pocket6.Profile = sketch9
pocket6.setExpression("Length", "Params.pocket6_length")
pocket6.Reversed = True

doc.recompute()
